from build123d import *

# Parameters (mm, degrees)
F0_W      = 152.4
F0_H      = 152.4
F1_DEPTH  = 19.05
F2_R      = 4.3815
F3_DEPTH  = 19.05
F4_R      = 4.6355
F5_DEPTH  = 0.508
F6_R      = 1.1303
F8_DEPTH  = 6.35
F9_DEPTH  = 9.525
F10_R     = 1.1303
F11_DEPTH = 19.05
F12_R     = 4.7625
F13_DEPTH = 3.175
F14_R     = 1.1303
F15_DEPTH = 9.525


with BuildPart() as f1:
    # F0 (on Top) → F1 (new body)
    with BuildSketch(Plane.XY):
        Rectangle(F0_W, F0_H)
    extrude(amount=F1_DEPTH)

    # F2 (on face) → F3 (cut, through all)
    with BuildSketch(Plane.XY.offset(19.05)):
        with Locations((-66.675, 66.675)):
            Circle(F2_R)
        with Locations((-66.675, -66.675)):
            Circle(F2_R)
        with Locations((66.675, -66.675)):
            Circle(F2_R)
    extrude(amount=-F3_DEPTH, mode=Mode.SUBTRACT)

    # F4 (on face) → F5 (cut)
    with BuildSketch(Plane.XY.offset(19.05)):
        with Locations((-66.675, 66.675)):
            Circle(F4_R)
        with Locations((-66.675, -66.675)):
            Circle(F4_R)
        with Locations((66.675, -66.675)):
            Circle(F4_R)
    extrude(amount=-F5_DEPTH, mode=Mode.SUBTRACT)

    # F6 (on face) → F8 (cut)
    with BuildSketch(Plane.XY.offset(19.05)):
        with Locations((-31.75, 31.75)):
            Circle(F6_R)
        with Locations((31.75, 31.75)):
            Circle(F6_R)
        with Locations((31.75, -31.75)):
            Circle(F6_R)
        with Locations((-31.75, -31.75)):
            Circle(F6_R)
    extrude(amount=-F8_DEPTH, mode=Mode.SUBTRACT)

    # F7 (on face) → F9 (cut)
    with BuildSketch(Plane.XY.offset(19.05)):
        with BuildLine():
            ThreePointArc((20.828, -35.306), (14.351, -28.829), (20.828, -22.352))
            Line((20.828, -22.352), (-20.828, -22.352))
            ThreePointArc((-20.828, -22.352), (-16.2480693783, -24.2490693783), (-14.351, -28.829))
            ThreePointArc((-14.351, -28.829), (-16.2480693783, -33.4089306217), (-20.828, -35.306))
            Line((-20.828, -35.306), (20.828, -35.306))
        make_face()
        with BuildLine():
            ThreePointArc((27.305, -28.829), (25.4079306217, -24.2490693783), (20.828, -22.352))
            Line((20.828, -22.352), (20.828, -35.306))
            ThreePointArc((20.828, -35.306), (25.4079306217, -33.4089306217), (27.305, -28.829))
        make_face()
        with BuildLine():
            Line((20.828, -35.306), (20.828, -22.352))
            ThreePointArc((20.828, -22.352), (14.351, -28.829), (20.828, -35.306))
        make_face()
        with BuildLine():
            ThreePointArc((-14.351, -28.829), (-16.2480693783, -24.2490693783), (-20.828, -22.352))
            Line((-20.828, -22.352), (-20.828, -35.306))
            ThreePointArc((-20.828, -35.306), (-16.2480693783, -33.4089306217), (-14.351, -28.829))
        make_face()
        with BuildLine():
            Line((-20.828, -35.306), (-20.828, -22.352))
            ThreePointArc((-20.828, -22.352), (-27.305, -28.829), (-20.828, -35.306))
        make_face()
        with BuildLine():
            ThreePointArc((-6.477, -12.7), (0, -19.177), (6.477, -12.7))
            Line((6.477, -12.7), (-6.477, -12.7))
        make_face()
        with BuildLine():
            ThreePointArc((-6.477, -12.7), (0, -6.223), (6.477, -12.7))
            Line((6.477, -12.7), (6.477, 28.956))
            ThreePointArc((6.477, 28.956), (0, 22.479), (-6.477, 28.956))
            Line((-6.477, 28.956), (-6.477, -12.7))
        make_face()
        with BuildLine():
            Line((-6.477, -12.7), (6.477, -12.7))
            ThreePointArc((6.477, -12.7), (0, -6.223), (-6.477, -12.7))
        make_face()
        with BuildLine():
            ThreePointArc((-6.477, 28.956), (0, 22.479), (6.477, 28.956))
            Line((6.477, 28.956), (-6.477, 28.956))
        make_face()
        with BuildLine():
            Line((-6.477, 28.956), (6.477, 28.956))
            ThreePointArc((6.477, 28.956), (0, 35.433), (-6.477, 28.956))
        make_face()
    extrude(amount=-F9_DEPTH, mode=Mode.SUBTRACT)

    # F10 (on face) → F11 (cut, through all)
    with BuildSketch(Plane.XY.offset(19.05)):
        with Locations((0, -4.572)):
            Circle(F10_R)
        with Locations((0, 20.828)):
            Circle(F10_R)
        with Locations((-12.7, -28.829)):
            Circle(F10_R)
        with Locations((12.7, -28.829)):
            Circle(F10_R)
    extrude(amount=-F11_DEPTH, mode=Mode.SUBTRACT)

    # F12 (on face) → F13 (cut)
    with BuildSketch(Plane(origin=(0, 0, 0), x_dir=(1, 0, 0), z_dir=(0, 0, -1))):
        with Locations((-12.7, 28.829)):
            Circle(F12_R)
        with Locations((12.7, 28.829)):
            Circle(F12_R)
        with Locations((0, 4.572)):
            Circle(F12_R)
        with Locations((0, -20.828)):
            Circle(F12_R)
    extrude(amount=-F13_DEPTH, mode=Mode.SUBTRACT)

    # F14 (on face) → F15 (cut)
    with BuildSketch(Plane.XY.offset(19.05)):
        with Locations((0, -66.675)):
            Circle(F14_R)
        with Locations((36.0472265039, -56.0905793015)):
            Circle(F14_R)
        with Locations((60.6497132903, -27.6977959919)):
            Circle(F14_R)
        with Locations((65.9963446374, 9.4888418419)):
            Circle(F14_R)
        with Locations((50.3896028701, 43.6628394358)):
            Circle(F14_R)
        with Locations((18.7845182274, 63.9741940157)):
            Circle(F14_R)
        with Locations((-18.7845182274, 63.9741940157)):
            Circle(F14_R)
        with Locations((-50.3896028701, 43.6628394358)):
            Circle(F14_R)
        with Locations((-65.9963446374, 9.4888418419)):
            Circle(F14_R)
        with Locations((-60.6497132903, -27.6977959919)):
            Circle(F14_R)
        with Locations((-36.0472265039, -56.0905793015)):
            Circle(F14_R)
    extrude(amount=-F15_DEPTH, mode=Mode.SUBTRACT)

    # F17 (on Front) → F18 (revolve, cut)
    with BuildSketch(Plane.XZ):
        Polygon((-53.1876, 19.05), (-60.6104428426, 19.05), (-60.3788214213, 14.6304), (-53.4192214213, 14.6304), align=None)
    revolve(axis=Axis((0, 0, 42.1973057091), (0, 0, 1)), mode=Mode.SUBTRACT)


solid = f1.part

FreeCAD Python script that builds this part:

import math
import FreeCAD as App
import Part
import Sketcher
Q = App.Units.Quantity


def add_polygon(sketch, points):
    """Adds a closed chain of lines whose ends are joined by coincident constraints."""
    first, n = sketch.GeometryCount, len(points)
    for a, b in zip(points, points[1:] + points[:1]):
        sketch.addGeometry(Part.LineSegment(App.Vector(*a, 0), App.Vector(*b, 0)), False)
    for i in range(n):
        sketch.addConstraint(Sketcher.Constraint("Coincident", first + i, 2, first + (i + 1) % n, 1))

doc = App.newDocument("Part")
params = doc.addObject("Spreadsheet::Sheet", "Params")
for row, (alias, value) in enumerate([
    ("sketch1_width", "6 in"),
    ("pad1_length", "0.75 in"),
    ("sketch2_diameter", "0.345 in"),
    ("sketch3_diameter", "0.365 in"),
    ("pocket2_length", "0.02 in"),
    ("sketch4_diameter", "0.089 in"),
    ("pocket3_length", "0.25 in"),
    ("sketch5_radius", "0.255 in"),
    ("sketch5_width", "1.64 in"),
    ("pocket4_length", "0.375 in"),
    ("sketch6_diameter", "0.089 in"),
    ("sketch7_diameter", "0.375 in"),
    ("pocket6_length", "0.125 in"),
    ("sketch8_diameter", "0.089 in"),
    ("pocket7_length", "0.375 in"),
    ("sketch9_width", "0.274 in"),
    ("groove_angle", "360 deg"),
], start=1):
    params.set(f"A{row}", alias)
    params.set(f"B{row}", "=" + value)
    params.setAlias(f"B{row}", alias)

body = doc.addObject("PartDesign::Body", "Body")

sketch1 = body.newObject("Sketcher::SketchObject", "Sketch")
sketch1.AttachmentSupport = (doc.getObject("XY_Plane"), [""])
sketch1.MapMode = "FlatFace"
add_polygon(sketch1, [(-76, 76), (-76, -76), (76, -76), (76, 76)])
sketch1.addConstraint([
    Sketcher.Constraint("Vertical", 0),
    Sketcher.Constraint("Horizontal", 1),
    Sketcher.Constraint("Vertical", 2),
    Sketcher.Constraint("Horizontal", 3),
    Sketcher.Constraint("Symmetric", 0, 2, 2, 2, -1, 1),
    Sketcher.Constraint("Equal", 3, 0),
    Sketcher.Constraint("DistanceX", 1, 1, 1, 2, Q("6 in")),
])
sketch1.setExpression("Constraints[10]", "Params.sketch1_width")
pad1 = body.newObject("PartDesign::Pad", "Pad")
pad1.Profile = sketch1
pad1.setExpression("Length", "Params.pad1_length")

sketch2 = body.newObject("Sketcher::SketchObject", "Sketch001")
sketch2.AttachmentSupport = (doc.getObject("XY_Plane"), [""])
sketch2.MapMode = "FlatFace"
sketch2.AttachmentOffset = App.Placement(App.Vector(0, 0, 0.75 * 25.4), App.Rotation())
sketch2.addGeometry([
    Part.Circle(App.Vector(-66.7, 66.7, 0), App.Vector(0, 0, 1), 4.4),
    Part.Circle(App.Vector(-66.7, -66.7, 0), App.Vector(0, 0, 1), 4.4),
    Part.Circle(App.Vector(66.7, -66.7, 0), App.Vector(0, 0, 1), 4.4),
], False)
sketch2.addConstraint([
    Sketcher.Constraint("Equal", 0, 1),
    Sketcher.Constraint("Equal", 1, 2),
    Sketcher.Constraint("Symmetric", 0, 3, 2, 3, -1, 1),
    Sketcher.Constraint("Symmetric", 1, 3, 2, 3, -2),
    Sketcher.Constraint("Diameter", 0, Q("0.345 in")),
    Sketcher.Constraint("DistanceY", 1, 3, 0, 3, Q("5.25 in")),
    Sketcher.Constraint("DistanceX", 1, 3, 2, 3, Q("5.25 in")),
])
sketch2.setExpression("Constraints[4]", "Params.sketch2_diameter")
pocket1 = body.newObject("PartDesign::Pocket", "Pocket")
pocket1.Profile = sketch2
pocket1.Type = "ThroughAll"

sketch3 = body.newObject("Sketcher::SketchObject", "Sketch002")
sketch3.AttachmentSupport = (doc.getObject("XY_Plane"), [""])
sketch3.MapMode = "FlatFace"
sketch3.AttachmentOffset = App.Placement(App.Vector(0, 0, 0.75 * 25.4), App.Rotation())
sketch3.addGeometry([
    Part.Circle(App.Vector(-66.7, 66.7, 0), App.Vector(0, 0, 1), 4.6),
    Part.Circle(App.Vector(-66.7, -66.7, 0), App.Vector(0, 0, 1), 4.6),
    Part.Circle(App.Vector(66.7, -66.7, 0), App.Vector(0, 0, 1), 4.6),
], False)
sketch3.addConstraint([
    Sketcher.Constraint("Equal", 0, 1),
    Sketcher.Constraint("Equal", 1, 2),
    Sketcher.Constraint("Symmetric", 0, 3, 2, 3, -1, 1),
    Sketcher.Constraint("Symmetric", 1, 3, 2, 3, -2),
    Sketcher.Constraint("Diameter", 0, Q("0.365 in")),
    Sketcher.Constraint("DistanceY", 1, 3, 0, 3, Q("5.25 in")),
    Sketcher.Constraint("DistanceX", 1, 3, 2, 3, Q("5.25 in")),
])
sketch3.setExpression("Constraints[4]", "Params.sketch3_diameter")
pocket2 = body.newObject("PartDesign::Pocket", "Pocket001")
pocket2.Profile = sketch3
pocket2.setExpression("Length", "Params.pocket2_length")

sketch4 = body.newObject("Sketcher::SketchObject", "Sketch003")
sketch4.AttachmentSupport = (doc.getObject("XY_Plane"), [""])
sketch4.MapMode = "FlatFace"
sketch4.AttachmentOffset = App.Placement(App.Vector(0, 0, 0.75 * 25.4), App.Rotation())
sketch4.addGeometry([
    Part.Circle(App.Vector(-31.8, 31.8, 0), App.Vector(0, 0, 1), 1.1),
    Part.Circle(App.Vector(31.8, 31.8, 0), App.Vector(0, 0, 1), 1.1),
    Part.Circle(App.Vector(31.8, -31.8, 0), App.Vector(0, 0, 1), 1.1),
    Part.Circle(App.Vector(-31.8, -31.8, 0), App.Vector(0, 0, 1), 1.1),
], False)
sketch4.addConstraint([
    Sketcher.Constraint("Equal", 0, 1),
    Sketcher.Constraint("Equal", 1, 2),
    Sketcher.Constraint("Equal", 2, 3),
    Sketcher.Constraint("Symmetric", 0, 3, 2, 3, -1, 1),
    Sketcher.Constraint("Symmetric", 1, 3, 3, 3, -1, 1),
    Sketcher.Constraint("Symmetric", 0, 3, 1, 3, -2),
    Sketcher.Constraint("Diameter", 0, Q("0.089 in")),
    Sketcher.Constraint("DistanceX", 0, 3, 1, 3, Q("2.5 in")),
    Sketcher.Constraint("DistanceY", 2, 3, 1, 3, Q("2.5 in")),
])
sketch4.setExpression("Constraints[6]", "Params.sketch4_diameter")
pocket3 = body.newObject("PartDesign::Pocket", "Pocket002")
pocket3.Profile = sketch4
pocket3.setExpression("Length", "Params.pocket3_length")

sketch5 = body.newObject("Sketcher::SketchObject", "Sketch004")
sketch5.AttachmentSupport = (doc.getObject("XY_Plane"), [""])
sketch5.MapMode = "FlatFace"
sketch5.AttachmentOffset = App.Placement(App.Vector(0, 0, 0.75 * 25.4), App.Rotation())
sketch5.addGeometry([
    Part.LineSegment(App.Vector(21, -22, 0), App.Vector(-21, -22, 0)),
    Part.ArcOfCircle(Part.Circle(App.Vector(-21, -29, 0), App.Vector(0, 0, 1), 6), math.radians(90), math.radians(270)),
    Part.LineSegment(App.Vector(-21, -35, 0), App.Vector(21, -35, 0)),
    Part.ArcOfCircle(Part.Circle(App.Vector(21, -29, 0), App.Vector(0, 0, 1), 6), math.radians(-90), math.radians(0)),
    Part.ArcOfCircle(Part.Circle(App.Vector(21, -29, 0), App.Vector(0, 0, 1), 6), math.radians(0), math.radians(90)),
    Part.ArcOfCircle(Part.Circle(App.Vector(0, -13, 0), App.Vector(0, 0, 1), 6), math.radians(180), math.radians(360)),
    Part.LineSegment(App.Vector(6, -13, 0), App.Vector(6, 29, 0)),
    Part.ArcOfCircle(Part.Circle(App.Vector(0, 29, 0), App.Vector(0, 0, 1), 6), math.radians(0), math.radians(180)),
    Part.LineSegment(App.Vector(-6, 29, 0), App.Vector(-6, -13, 0)),
], False)
sketch5.addConstraint([
    Sketcher.Constraint("Tangent", 0, 2, 1, 1),
    Sketcher.Constraint("Tangent", 1, 2, 2, 1),
    Sketcher.Constraint("Tangent", 2, 2, 3, 1),
    Sketcher.Constraint("Tangent", 3, 2, 4, 1),
    Sketcher.Constraint("Tangent", 4, 2, 0, 1),
    Sketcher.Constraint("Tangent", 5, 2, 6, 1),
    Sketcher.Constraint("Tangent", 6, 2, 7, 1),
    Sketcher.Constraint("Tangent", 7, 2, 8, 1),
    Sketcher.Constraint("Tangent", 8, 2, 5, 1),
    Sketcher.Constraint("Horizontal", 0),
    Sketcher.Constraint("Horizontal", 2),
    Sketcher.Constraint("Vertical", 6),
    Sketcher.Constraint("Vertical", 8),
    Sketcher.Constraint("Equal", 1, 3),
    Sketcher.Constraint("Equal", 4, 5),
    Sketcher.Constraint("PointOnObject", 5, 3, -2),
    Sketcher.Constraint("Horizontal", 4, 3, 3, 2),
    Sketcher.Constraint("Equal", 2, 6),
    Sketcher.Constraint("Radius", 1, Q("0.255 in")),
    Sketcher.Constraint("DistanceX", 0, 2, 0, 1, Q("1.64 in")),
    Sketcher.Constraint("DistanceY", 5, 3, -1, 1, Q("0.5 in")),
    Sketcher.Constraint("DistanceX", 1, 3, -1, 1, Q("0.82 in")),
    Sketcher.Constraint("DistanceY", 0, 2, -1, 1, Q("0.88 in")),
])
sketch5.setExpression("Constraints[18]", "Params.sketch5_radius")
sketch5.setExpression("Constraints[19]", "Params.sketch5_width")
pocket4 = body.newObject("PartDesign::Pocket", "Pocket003")
pocket4.Profile = sketch5
pocket4.setExpression("Length", "Params.pocket4_length")

sketch6 = body.newObject("Sketcher::SketchObject", "Sketch005")
sketch6.AttachmentSupport = (doc.getObject("XY_Plane"), [""])
sketch6.MapMode = "FlatFace"
sketch6.AttachmentOffset = App.Placement(App.Vector(0, 0, 0.75 * 25.4), App.Rotation())
sketch6.addGeometry([
    Part.Circle(App.Vector(0, -4.6, 0), App.Vector(0, 0, 1), 1.1),
    Part.Circle(App.Vector(0, 20.8, 0), App.Vector(0, 0, 1), 1.1),
    Part.Circle(App.Vector(-12.7, -28.8, 0), App.Vector(0, 0, 1), 1.1),
    Part.Circle(App.Vector(12.7, -28.8, 0), App.Vector(0, 0, 1), 1.1),
], False)
sketch6.addConstraint([
    Sketcher.Constraint("Equal", 0, 1),
    Sketcher.Constraint("Equal", 1, 2),
    Sketcher.Constraint("Equal", 2, 3),
    Sketcher.Constraint("Symmetric", 2, 3, 3, 3, -2),
    Sketcher.Constraint("PointOnObject", 0, 3, -2),
    Sketcher.Constraint("PointOnObject", 1, 3, -2),
    Sketcher.Constraint("Diameter", 0, Q("0.089 in")),
    Sketcher.Constraint("DistanceY", 0, 3, 1, 3, Q("1 in")),
    Sketcher.Constraint("DistanceX", 2, 3, 3, 3, Q("1 in")),
    Sketcher.Constraint("DistanceY", 0, 3, -1, 1, Q("0.18 in")),
    Sketcher.Constraint("DistanceY", 2, 3, -1, 1, Q("1.135 in")),
])
sketch6.setExpression("Constraints[6]", "Params.sketch6_diameter")
pocket5 = body.newObject("PartDesign::Pocket", "Pocket004")
pocket5.Profile = sketch6
pocket5.Type = "ThroughAll"

sketch7 = body.newObject("Sketcher::SketchObject", "Sketch006")
sketch7.AttachmentSupport = (doc.getObject("XY_Plane"), [""])
sketch7.MapMode = "FlatFace"
sketch7.addGeometry([
    Part.Circle(App.Vector(-12.7, -28.8, 0), App.Vector(0, 0, 1), 4.8),
    Part.Circle(App.Vector(12.7, -28.8, 0), App.Vector(0, 0, 1), 4.8),
    Part.Circle(App.Vector(0, -4.6, 0), App.Vector(0, 0, 1), 4.8),
    Part.Circle(App.Vector(0, 20.8, 0), App.Vector(0, 0, 1), 4.8),
], False)
sketch7.addConstraint([
    Sketcher.Constraint("Equal", 0, 1),
    Sketcher.Constraint("Equal", 1, 2),
    Sketcher.Constraint("Equal", 2, 3),
    Sketcher.Constraint("Symmetric", 0, 3, 1, 3, -2),
    Sketcher.Constraint("PointOnObject", 2, 3, -2),
    Sketcher.Constraint("PointOnObject", 3, 3, -2),
    Sketcher.Constraint("Diameter", 0, Q("0.375 in")),
    Sketcher.Constraint("DistanceX", 0, 3, 1, 3, Q("1 in")),
    Sketcher.Constraint("DistanceY", 2, 3, 3, 3, Q("1 in")),
    Sketcher.Constraint("DistanceY", 2, 3, -1, 1, Q("0.18 in")),
    Sketcher.Constraint("DistanceY", 0, 3, -1, 1, Q("1.135 in")),
])
sketch7.setExpression("Constraints[6]", "Params.sketch7_diameter")
pocket6 = body.newObject("PartDesign::Pocket", "Pocket005")
pocket6.Profile = sketch7
pocket6.setExpression("Length", "Params.pocket6_length")
pocket6.Reversed = True

sketch8 = body.newObject("Sketcher::SketchObject", "Sketch007")
sketch8.AttachmentSupport = (doc.getObject("XY_Plane"), [""])
sketch8.MapMode = "FlatFace"
sketch8.AttachmentOffset = App.Placement(App.Vector(0, 0, 0.75 * 25.4), App.Rotation())
sketch8.addGeometry([
    Part.Circle(App.Vector(0, -66.7, 0), App.Vector(0, 0, 1), 1.1),
    Part.Circle(App.Vector(36, -56.1, 0), App.Vector(0, 0, 1), 1.1),
    Part.Circle(App.Vector(60.6, -27.7, 0), App.Vector(0, 0, 1), 1.1),
    Part.Circle(App.Vector(66, 9.5, 0), App.Vector(0, 0, 1), 1.1),
    Part.Circle(App.Vector(50.4, 43.7, 0), App.Vector(0, 0, 1), 1.1),
    Part.Circle(App.Vector(18.8, 64, 0), App.Vector(0, 0, 1), 1.1),
    Part.Circle(App.Vector(-18.8, 64, 0), App.Vector(0, 0, 1), 1.1),
    Part.Circle(App.Vector(-50.4, 43.7, 0), App.Vector(0, 0, 1), 1.1),
    Part.Circle(App.Vector(-66, 9.5, 0), App.Vector(0, 0, 1), 1.1),
    Part.Circle(App.Vector(-60.6, -27.7, 0), App.Vector(0, 0, 1), 1.1),
    Part.Circle(App.Vector(-36, -56.1, 0), App.Vector(0, 0, 1), 1.1),
], False)
sketch8.addConstraint([
    Sketcher.Constraint("Equal", 0, 1),
    Sketcher.Constraint("Equal", 1, 2),
    Sketcher.Constraint("Equal", 2, 3),
    Sketcher.Constraint("Equal", 3, 4),
    Sketcher.Constraint("Equal", 4, 5),
    Sketcher.Constraint("Equal", 5, 6),
    Sketcher.Constraint("Equal", 6, 7),
    Sketcher.Constraint("Equal", 7, 8),
    Sketcher.Constraint("Equal", 8, 9),
    Sketcher.Constraint("Equal", 9, 10),
    Sketcher.Constraint("Symmetric", 5, 3, 6, 3, -2),
    Sketcher.Constraint("Symmetric", 4, 3, 7, 3, -2),
    Sketcher.Constraint("Symmetric", 3, 3, 8, 3, -2),
    Sketcher.Constraint("Symmetric", 2, 3, 9, 3, -2),
    Sketcher.Constraint("Symmetric", 1, 3, 10, 3, -2),
    Sketcher.Constraint("PointOnObject", 0, 3, -2),
    Sketcher.Constraint("Diameter", 0, Q("0.089 in")),
    Sketcher.Constraint("DistanceY", 0, 3, -1, 1, Q("2.625 in")),
    Sketcher.Constraint("DistanceY", 1, 3, 4, 3, Q("3.9273 in")),
    Sketcher.Constraint("DistanceY", 1, 3, -1, 1, 56.090579),
    Sketcher.Constraint("DistanceY", -1, 1, 3, 3, 9.488842),
    Sketcher.Constraint("DistanceX", -1, 1, 5, 3, 18.784518),
    Sketcher.Constraint("DistanceX", 2, 3, 3, 3, 5.346631),
    Sketcher.Constraint("DistanceX", 1, 3, 3, 3, 29.949118),
    Sketcher.Constraint("DistanceX", 4, 3, 3, 3, 15.606742),
    Sketcher.Constraint("DistanceY", 2, 3, 5, 3, 91.67199),
    Sketcher.Constraint("DistanceX", 5, 3, 1, 3, 17.262708),
    Sketcher.Constraint("DistanceY", 2, 3, -1, 1, 27.697796),
])
sketch8.setExpression("Constraints[16]", "Params.sketch8_diameter")
pocket7 = body.newObject("PartDesign::Pocket", "Pocket006")
pocket7.Profile = sketch8
pocket7.setExpression("Length", "Params.pocket7_length")

sketch9 = body.newObject("Sketcher::SketchObject", "Sketch008")
sketch9.AttachmentSupport = (doc.getObject("XZ_Plane"), [""])
sketch9.MapMode = "FlatFace"
add_polygon(sketch9, [(-53.2, 19.1), (-60.6, 19.1), (-60.4, 14.6), (-53.4, 14.6)])
sketch9.addConstraint([
    Sketcher.Constraint("Horizontal", 0),
    Sketcher.Constraint("Horizontal", 2),
    Sketcher.Constraint("Equal", 1, 3),
    Sketcher.Constraint("Angle", 1, Q("-87 deg")),
    Sketcher.Constraint("DistanceX", 2, 1, 2, 2, Q("0.274 in")),
    Sketcher.Constraint("DistanceY", -1, 1, 0, 2, Q("0.75 in")),
    Sketcher.Constraint("DistanceY", -1, 1, 1, 2, Q("0.576 in")),
    Sketcher.Constraint("DistanceX", 3, 2, -1, 1, Q("2.094 in")),
])
sketch9.setExpression("Constraints[8]", "Params.sketch9_width")
groove = body.newObject("PartDesign::Groove", "Groove")
groove.Profile = sketch9
groove.ReferenceAxis = (sketch9, ["V_Axis"])
groove.setExpression("Angle", "Params.groove_angle")

doc.recompute()
